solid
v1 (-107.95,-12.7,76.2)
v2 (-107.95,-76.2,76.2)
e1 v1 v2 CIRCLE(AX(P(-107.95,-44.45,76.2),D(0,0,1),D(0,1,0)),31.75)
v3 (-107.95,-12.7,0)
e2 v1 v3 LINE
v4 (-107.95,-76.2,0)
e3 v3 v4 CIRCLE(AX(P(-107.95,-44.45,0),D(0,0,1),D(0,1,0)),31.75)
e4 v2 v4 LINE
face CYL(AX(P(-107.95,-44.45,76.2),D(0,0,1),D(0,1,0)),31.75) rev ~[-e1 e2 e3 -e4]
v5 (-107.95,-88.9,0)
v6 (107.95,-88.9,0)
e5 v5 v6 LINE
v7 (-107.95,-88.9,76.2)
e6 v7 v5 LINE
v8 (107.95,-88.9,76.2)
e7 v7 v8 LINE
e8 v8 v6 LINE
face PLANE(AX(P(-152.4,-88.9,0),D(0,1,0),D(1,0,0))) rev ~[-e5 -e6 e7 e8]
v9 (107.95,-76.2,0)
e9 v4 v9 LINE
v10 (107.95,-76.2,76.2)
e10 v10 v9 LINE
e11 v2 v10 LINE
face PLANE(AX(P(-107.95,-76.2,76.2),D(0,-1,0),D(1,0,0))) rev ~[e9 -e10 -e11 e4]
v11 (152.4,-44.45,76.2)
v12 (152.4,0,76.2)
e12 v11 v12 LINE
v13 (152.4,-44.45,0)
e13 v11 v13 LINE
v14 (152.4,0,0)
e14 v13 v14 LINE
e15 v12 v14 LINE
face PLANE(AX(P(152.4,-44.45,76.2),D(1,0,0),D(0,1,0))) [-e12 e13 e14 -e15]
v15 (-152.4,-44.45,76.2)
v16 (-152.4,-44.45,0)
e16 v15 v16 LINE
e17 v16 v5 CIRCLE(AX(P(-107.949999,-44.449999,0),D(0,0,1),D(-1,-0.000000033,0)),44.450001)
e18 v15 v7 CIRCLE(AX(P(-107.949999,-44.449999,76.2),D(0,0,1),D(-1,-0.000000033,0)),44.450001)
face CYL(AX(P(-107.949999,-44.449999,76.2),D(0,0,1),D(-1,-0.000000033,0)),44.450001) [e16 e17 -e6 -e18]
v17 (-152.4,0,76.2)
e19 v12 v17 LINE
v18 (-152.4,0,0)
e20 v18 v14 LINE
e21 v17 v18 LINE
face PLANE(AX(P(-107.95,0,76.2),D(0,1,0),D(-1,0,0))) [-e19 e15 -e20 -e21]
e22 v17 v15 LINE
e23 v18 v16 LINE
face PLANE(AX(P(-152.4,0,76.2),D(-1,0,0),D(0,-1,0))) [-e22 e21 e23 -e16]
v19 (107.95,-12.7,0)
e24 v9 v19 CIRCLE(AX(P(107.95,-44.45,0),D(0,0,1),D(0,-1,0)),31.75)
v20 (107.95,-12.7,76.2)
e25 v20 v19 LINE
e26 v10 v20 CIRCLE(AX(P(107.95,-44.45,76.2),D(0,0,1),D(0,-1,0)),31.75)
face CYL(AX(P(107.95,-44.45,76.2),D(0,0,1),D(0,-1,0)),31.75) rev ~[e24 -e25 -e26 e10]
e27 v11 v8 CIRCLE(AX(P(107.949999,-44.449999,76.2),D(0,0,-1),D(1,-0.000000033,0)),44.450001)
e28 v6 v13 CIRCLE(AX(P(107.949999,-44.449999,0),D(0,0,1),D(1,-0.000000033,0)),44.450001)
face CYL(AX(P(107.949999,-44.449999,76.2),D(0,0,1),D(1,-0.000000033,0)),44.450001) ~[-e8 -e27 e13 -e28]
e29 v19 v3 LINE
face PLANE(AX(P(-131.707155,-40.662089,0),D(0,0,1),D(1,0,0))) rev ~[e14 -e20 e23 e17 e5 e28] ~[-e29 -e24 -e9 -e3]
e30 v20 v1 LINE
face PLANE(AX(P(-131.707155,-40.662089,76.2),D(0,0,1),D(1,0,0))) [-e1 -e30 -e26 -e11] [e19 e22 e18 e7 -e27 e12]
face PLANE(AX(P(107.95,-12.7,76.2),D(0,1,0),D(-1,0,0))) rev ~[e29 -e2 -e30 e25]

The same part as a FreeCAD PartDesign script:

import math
import FreeCAD as App
import Part
import Sketcher
Q = App.Units.Quantity


def add_polygon(sketch, points):
    """Adds a closed chain of lines whose ends are joined by coincident constraints."""
    first, n = sketch.GeometryCount, len(points)
    for a, b in zip(points, points[1:] + points[:1]):
        sketch.addGeometry(Part.LineSegment(App.Vector(*a, 0), App.Vector(*b, 0)), False)
    for i in range(n):
        sketch.addConstraint(Sketcher.Constraint("Coincident", first + i, 2, first + (i + 1) % n, 1))

doc = App.newDocument("Part")
body = doc.addObject("PartDesign::Body", "Body")

# Sketch on XY plane
sketch1 = doc.addObject("Sketcher::SketchObject", "Sketch")
body.addObject(sketch1)
sketch1.AttachmentSupport = (doc.XY_Plane, [""])
sketch1.MapMode = "FlatFace"
add_polygon(sketch1, [(-152, -89), (152, -89), (152, 0), (-152, 0)])  # lines 0-3
sketch1.addConstraint(Sketcher.Constraint("Horizontal", 0))
sketch1.addConstraint(Sketcher.Constraint("Vertical", 1))
sketch1.addConstraint(Sketcher.Constraint("Horizontal", 2))
sketch1.addConstraint(Sketcher.Constraint("Vertical", 3))
sketch1.addConstraint(Sketcher.Constraint("Symmetric", 1, 2, 2, 2, -1, 1))
sketch1.addConstraint(Sketcher.Constraint("DistanceX", 0, 1, 0, 2, Q("12 in")))
sketch1.addConstraint(Sketcher.Constraint("DistanceY", 1, 1, 1, 2, Q("3.5 in")))
pad1 = doc.addObject("PartDesign::Pad", "Pad")
body.addObject(pad1)
pad1.Profile = sketch1
pad1.Length = Q("3 in")

# Sketch on XY plane
sketch2 = doc.addObject("Sketcher::SketchObject", "Sketch001")
body.addObject(sketch2)
sketch2.AttachmentSupport = (doc.XY_Plane, [""])
sketch2.MapMode = "FlatFace"
sketch2.AttachmentOffset = App.Placement(App.Vector(0, 0, 3 * 25.4), App.Rotation())
sketch2.addGeometry(Part.LineSegment(App.Vector(-152, -89, 0), App.Vector(-108, -89, 0)), False)
sketch2.addGeometry(Part.ArcOfCircle(Part.Circle(App.Vector(-108, -44, 0), App.Vector(0, 0, 1), 44), math.radians(-180), math.radians(-90)), False)
sketch2.addGeometry(Part.LineSegment(App.Vector(-152, -44, 0), App.Vector(-152, -89, 0)), False)
sketch2.addConstraint(Sketcher.Constraint("Tangent", 0, 2, 1, 2))
sketch2.addConstraint(Sketcher.Constraint("Tangent", 1, 1, 2, 1))
sketch2.addConstraint(Sketcher.Constraint("Coincident", 2, 2, 0, 1))
sketch2.addConstraint(Sketcher.Constraint("Horizontal", 0))
sketch2.addConstraint(Sketcher.Constraint("Vertical", 2))
sketch2.addConstraint(Sketcher.Constraint("Radius", 1, Q("1.7500001 in")))
sketch2.addConstraint(Sketcher.Constraint("DistanceX", 1, 1, -1, 1, Q("6 in")))
sketch2.addConstraint(Sketcher.Constraint("DistanceY", 0, 2, -1, 1, Q("3.5 in")))
pocket1 = doc.addObject("PartDesign::Pocket", "Pocket")
body.addObject(pocket1)
pocket1.Profile = sketch2
pocket1.Length = Q("5 in")

# Sketch on XY plane
sketch3 = doc.addObject("Sketcher::SketchObject", "Sketch002")
body.addObject(sketch3)
sketch3.AttachmentSupport = (doc.XY_Plane, [""])
sketch3.MapMode = "FlatFace"
sketch3.AttachmentOffset = App.Placement(App.Vector(0, 0, 3 * 25.4), App.Rotation())
sketch3.addGeometry(Part.ArcOfCircle(Part.Circle(App.Vector(-108, -44, 0), App.Vector(0, 0, 1), 44), math.radians(-180), math.radians(-90)), False)
sketch3.addGeometry(Part.LineSegment(App.Vector(-108, -89, 0), App.Vector(-108, -76, 0)), False)
sketch3.addGeometry(Part.ArcOfCircle(Part.Circle(App.Vector(-108, -44, 0), App.Vector(0, 0, 1), 32), math.radians(90), math.radians(270)), False)
sketch3.addGeometry(Part.LineSegment(App.Vector(-108, -13, 0), App.Vector(-108, 0, 0)), False)
sketch3.addGeometry(Part.LineSegment(App.Vector(-108, 0, 0), App.Vector(-152, 0, 0)), False)
sketch3.addGeometry(Part.LineSegment(App.Vector(-152, 0, 0), App.Vector(-152, -44, 0)), False)
sketch3.addConstraint(Sketcher.Constraint("Coincident", 0, 2, 1, 1))
sketch3.addConstraint(Sketcher.Constraint("Coincident", 1, 2, 2, 2))
sketch3.addConstraint(Sketcher.Constraint("Coincident", 2, 1, 3, 1))
sketch3.addConstraint(Sketcher.Constraint("Coincident", 3, 2, 4, 1))
sketch3.addConstraint(Sketcher.Constraint("Coincident", 4, 2, 5, 1))
sketch3.addConstraint(Sketcher.Constraint("Tangent", 5, 2, 0, 1))
sketch3.addConstraint(Sketcher.Constraint("Vertical", 1))
sketch3.addConstraint(Sketcher.Constraint("Vertical", 3))
sketch3.addConstraint(Sketcher.Constraint("Horizontal", 4))
sketch3.addConstraint(Sketcher.Constraint("Vertical", 5))
sketch3.addConstraint(Sketcher.Constraint("Coincident", 2, 3, 0, 3))
sketch3.addConstraint(Sketcher.Constraint("PointOnObject", 3, 2, -1))
sketch3.addConstraint(Sketcher.Constraint("Vertical", 2, 3, 0, 2))
sketch3.addConstraint(Sketcher.Constraint("Vertical", 1, 2, 2, 1))
sketch3.addConstraint(Sketcher.Constraint("Equal", 1, 3))
sketch3.addConstraint(Sketcher.Constraint("Radius", 0, Q("1.7500001 in")))
sketch3.addConstraint(Sketcher.Constraint("Radius", 2, Q("1.25 in")))
sketch3.addConstraint(Sketcher.Constraint("DistanceX", 4, 2, -1, 1, Q("6 in")))
pocket2 = doc.addObject("PartDesign::Pocket", "Pocket001")
body.addObject(pocket2)
pocket2.Profile = sketch3
pocket2.Length = Q("5 in")

# Sketch on XY plane
sketch4 = doc.addObject("Sketcher::SketchObject", "Sketch003")
body.addObject(sketch4)
sketch4.AttachmentSupport = (doc.XY_Plane, [""])
sketch4.MapMode = "FlatFace"
sketch4.AttachmentOffset = App.Placement(App.Vector(0, 0, 3 * 25.4), App.Rotation())
sketch4.addGeometry(Part.ArcOfCircle(Part.Circle(App.Vector(108, -44, 0), App.Vector(0, 0, 1), 44), math.radians(0), math.radians(90)), False)
sketch4.addGeometry(Part.LineSegment(App.Vector(152, -44, 0), App.Vector(152, 0, 0)), False)
sketch4.addGeometry(Part.LineSegment(App.Vector(152, 0, 0), App.Vector(108, 0, 0)), False)
sketch4.addConstraint(Sketcher.Constraint("Tangent", 0, 1, 1, 1))
sketch4.addConstraint(Sketcher.Constraint("Coincident", 1, 2, 2, 1))
sketch4.addConstraint(Sketcher.Constraint("Tangent", 2, 2, 0, 2))
sketch4.addConstraint(Sketcher.Constraint("Vertical", 1))
sketch4.addConstraint(Sketcher.Constraint("Horizontal", 2))
sketch4.addConstraint(Sketcher.Constraint("PointOnObject", 1, 2, -1))
sketch4.addConstraint(Sketcher.Constraint("Radius", 0, Q("1.7500001 in")))
sketch4.addConstraint(Sketcher.Constraint("DistanceX", -1, 1, 0, 1, Q("6 in")))
pocket3 = doc.addObject("PartDesign::Pocket", "Pocket002")
body.addObject(pocket3)
pocket3.Profile = sketch4
pocket3.Length = Q("5 in")

# Sketch on XY plane
sketch5 = doc.addObject("Sketcher::SketchObject", "Sketch004")
body.addObject(sketch5)
sketch5.AttachmentSupport = (doc.XY_Plane, [""])
sketch5.MapMode = "FlatFace"
sketch5.AttachmentOffset = App.Placement(App.Vector(0, 0, 3 * 25.4), App.Rotation())
sketch5.addGeometry(Part.LineSegment(App.Vector(108, -89, 0), App.Vector(152, -89, 0)), False)
sketch5.addGeometry(Part.LineSegment(App.Vector(152, -89, 0), App.Vector(152, -44, 0)), False)
sketch5.addGeometry(Part.ArcOfCircle(Part.Circle(App.Vector(108, -44, 0), App.Vector(0, 0, 1), 44), math.radians(-90), math.radians(0)), False)
sketch5.addConstraint(Sketcher.Constraint("Coincident", 0, 2, 1, 1))
sketch5.addConstraint(Sketcher.Constraint("Tangent", 1, 2, 2, 2))
sketch5.addConstraint(Sketcher.Constraint("Tangent", 2, 1, 0, 1))
sketch5.addConstraint(Sketcher.Constraint("Horizontal", 0))
sketch5.addConstraint(Sketcher.Constraint("Vertical", 1))
sketch5.addConstraint(Sketcher.Constraint("Radius", 2, Q("1.7500001 in")))
sketch5.addConstraint(Sketcher.Constraint("DistanceX", -1, 1, 0, 2, Q("6 in")))
sketch5.addConstraint(Sketcher.Constraint("DistanceY", 0, 2, -1, 1, Q("3.5 in")))
pocket4 = doc.addObject("PartDesign::Pocket", "Pocket003")
body.addObject(pocket4)
pocket4.Profile = sketch5
pocket4.Length = Q("5 in")

# Sketch on XY plane
sketch6 = doc.addObject("Sketcher::SketchObject", "Sketch005")
body.addObject(sketch6)
sketch6.AttachmentSupport = (doc.XY_Plane, [""])
sketch6.MapMode = "FlatFace"
sketch6.AttachmentOffset = App.Placement(App.Vector(0, 0, 3 * 25.4), App.Rotation())
sketch6.addGeometry(Part.ArcOfCircle(Part.Circle(App.Vector(108, -44, 0), App.Vector(0, 0, 1), 44), math.radians(0), math.radians(90)), False)
sketch6.addGeometry(Part.LineSegment(App.Vector(152, -44, 0), App.Vector(152, 0, 0)), False)
sketch6.addGeometry(Part.LineSegment(App.Vector(152, 0, 0), App.Vector(108, 0, 0)), False)
sketch6.addConstraint(Sketcher.Constraint("Tangent", 0, 1, 1, 1))
sketch6.addConstraint(Sketcher.Constraint("Coincident", 1, 2, 2, 1))
sketch6.addConstraint(Sketcher.Constraint("Tangent", 2, 2, 0, 2))
sketch6.addConstraint(Sketcher.Constraint("Vertical", 1))
sketch6.addConstraint(Sketcher.Constraint("Horizontal", 2))
sketch6.addConstraint(Sketcher.Constraint("PointOnObject", 1, 2, -1))
sketch6.addConstraint(Sketcher.Constraint("Radius", 0, Q("1.7500001 in")))
sketch6.addConstraint(Sketcher.Constraint("DistanceX", -1, 1, 0, 1, Q("6 in")))
pad2 = doc.addObject("PartDesign::Pad", "Pad001")
body.addObject(pad2)
pad2.Profile = sketch6
pad2.Length = Q("3 in")
pad2.Reversed = True

# Sketch on XY plane
sketch7 = doc.addObject("Sketcher::SketchObject", "Sketch006")
body.addObject(sketch7)
sketch7.AttachmentSupport = (doc.XY_Plane, [""])
sketch7.MapMode = "FlatFace"
sketch7.AttachmentOffset = App.Placement(App.Vector(0, 0, 3 * 25.4), App.Rotation())
sketch7.addGeometry(Part.ArcOfCircle(Part.Circle(App.Vector(-108, -44, 0), App.Vector(0, 0, 1), 44), math.radians(-180), math.radians(-90)), False)
sketch7.addGeometry(Part.LineSegment(App.Vector(-108, -89, 0), App.Vector(-108, -76, 0)), False)
sketch7.addGeometry(Part.ArcOfCircle(Part.Circle(App.Vector(-108, -44, 0), App.Vector(0, 0, 1), 32), math.radians(90), math.radians(270)), False)
sketch7.addGeometry(Part.LineSegment(App.Vector(-108, -13, 0), App.Vector(-108, 0, 0)), False)
sketch7.addGeometry(Part.LineSegment(App.Vector(-108, 0, 0), App.Vector(-152, 0, 0)), False)
sketch7.addGeometry(Part.LineSegment(App.Vector(-152, 0, 0), App.Vector(-152, -44, 0)), False)
sketch7.addConstraint(Sketcher.Constraint("Coincident", 0, 2, 1, 1))
sketch7.addConstraint(Sketcher.Constraint("Coincident", 1, 2, 2, 2))
sketch7.addConstraint(Sketcher.Constraint("Coincident", 2, 1, 3, 1))
sketch7.addConstraint(Sketcher.Constraint("Coincident", 3, 2, 4, 1))
sketch7.addConstraint(Sketcher.Constraint("Coincident", 4, 2, 5, 1))
sketch7.addConstraint(Sketcher.Constraint("Tangent", 5, 2, 0, 1))
sketch7.addConstraint(Sketcher.Constraint("Vertical", 1))
sketch7.addConstraint(Sketcher.Constraint("Vertical", 3))
sketch7.addConstraint(Sketcher.Constraint("Horizontal", 4))
sketch7.addConstraint(Sketcher.Constraint("Vertical", 5))
sketch7.addConstraint(Sketcher.Constraint("Coincident", 2, 3, 0, 3))
sketch7.addConstraint(Sketcher.Constraint("PointOnObject", 3, 2, -1))
sketch7.addConstraint(Sketcher.Constraint("Vertical", 2, 3, 0, 2))
sketch7.addConstraint(Sketcher.Constraint("Vertical", 1, 2, 2, 1))
sketch7.addConstraint(Sketcher.Constraint("Equal", 1, 3))
sketch7.addConstraint(Sketcher.Constraint("Radius", 0, Q("1.7500001 in")))
sketch7.addConstraint(Sketcher.Constraint("Radius", 2, Q("1.25 in")))
sketch7.addConstraint(Sketcher.Constraint("DistanceX", 4, 2, -1, 1, Q("6 in")))
pad3 = doc.addObject("PartDesign::Pad", "Pad002")
body.addObject(pad3)
pad3.Profile = sketch7
pad3.Length = Q("3 in")
pad3.Reversed = True

# Sketch on XY plane
sketch8 = doc.addObject("Sketcher::SketchObject", "Sketch007")
body.addObject(sketch8)
sketch8.AttachmentSupport = (doc.XY_Plane, [""])
sketch8.MapMode = "FlatFace"
sketch8.AttachmentOffset = App.Placement(App.Vector(0, 0, 3 * 25.4), App.Rotation())
sketch8.addGeometry(Part.ArcOfCircle(Part.Circle(App.Vector(108, -44, 0), App.Vector(0, 0, 1), 32), math.radians(-90), math.radians(90)), False)
sketch8.addGeometry(Part.LineSegment(App.Vector(108, -13, 0), App.Vector(-108, -13, 0)), False)
sketch8.addGeometry(Part.ArcOfCircle(Part.Circle(App.Vector(-108, -44, 0), App.Vector(0, 0, 1), 32), math.radians(90), math.radians(270)), False)
sketch8.addGeometry(Part.LineSegment(App.Vector(-108, -76, 0), App.Vector(108, -76, 0)), False)
sketch8.addConstraint(Sketcher.Constraint("Tangent", 0, 2, 1, 1))
sketch8.addConstraint(Sketcher.Constraint("Tangent", 1, 2, 2, 1))
sketch8.addConstraint(Sketcher.Constraint("Tangent", 2, 2, 3, 1))
sketch8.addConstraint(Sketcher.Constraint("Tangent", 3, 2, 0, 1))
sketch8.addConstraint(Sketcher.Constraint("Horizontal", 1))
sketch8.addConstraint(Sketcher.Constraint("Horizontal", 3))
sketch8.addConstraint(Sketcher.Constraint("Radius", 0, Q("1.25 in")))
sketch8.addConstraint(Sketcher.Constraint("DistanceX", 1, 2, 1, 1, Q("8.5 in")))
sketch8.addConstraint(Sketcher.Constraint("DistanceY", 2, 2, -1, 1, Q("3 in")))
sketch8.addConstraint(Sketcher.Constraint("DistanceX", -1, 1, 0, 3, Q("4.25 in")))
pocket5 = doc.addObject("PartDesign::Pocket", "Pocket004")
body.addObject(pocket5)
pocket5.Profile = sketch8
pocket5.Length = Q("3 in")

# Sketch on XY plane
sketch9 = doc.addObject("Sketcher::SketchObject", "Sketch008")
body.addObject(sketch9)
sketch9.AttachmentSupport = (doc.XY_Plane, [""])
sketch9.MapMode = "FlatFace"
sketch9.AttachmentOffset = App.Placement(App.Vector(0, 0, 3 * 25.4), App.Rotation())
sketch9.addGeometry(Part.ArcOfCircle(Part.Circle(App.Vector(108, -44, 0), App.Vector(0, 0, 1), 32), math.radians(-90), math.radians(90)), False)
sketch9.addGeometry(Part.LineSegment(App.Vector(108, -13, 0), App.Vector(-108, -13, 0)), False)
sketch9.addGeometry(Part.ArcOfCircle(Part.Circle(App.Vector(-108, -44, 0), App.Vector(0, 0, 1), 32), math.radians(90), math.radians(270)), False)
sketch9.addGeometry(Part.LineSegment(App.Vector(-108, -76, 0), App.Vector(108, -76, 0)), False)
sketch9.addConstraint(Sketcher.Constraint("Tangent", 0, 2, 1, 1))
sketch9.addConstraint(Sketcher.Constraint("Tangent", 1, 2, 2, 1))
sketch9.addConstraint(Sketcher.Constraint("Tangent", 2, 2, 3, 1))
sketch9.addConstraint(Sketcher.Constraint("Tangent", 3, 2, 0, 1))
sketch9.addConstraint(Sketcher.Constraint("Horizontal", 1))
sketch9.addConstraint(Sketcher.Constraint("Horizontal", 3))
sketch9.addConstraint(Sketcher.Constraint("Radius", 0, Q("1.25 in")))
sketch9.addConstraint(Sketcher.Constraint("DistanceX", 1, 2, 1, 1, Q("8.5 in")))
sketch9.addConstraint(Sketcher.Constraint("DistanceY", 2, 2, -1, 1, Q("3 in")))
sketch9.addConstraint(Sketcher.Constraint("DistanceX", -1, 1, 0, 3, Q("4.25 in")))
pocket6 = doc.addObject("PartDesign::Pocket", "Pocket005")
body.addObject(pocket6)
pocket6.Profile = sketch9
pocket6.Length = Q("3 in")

doc.recompute()
